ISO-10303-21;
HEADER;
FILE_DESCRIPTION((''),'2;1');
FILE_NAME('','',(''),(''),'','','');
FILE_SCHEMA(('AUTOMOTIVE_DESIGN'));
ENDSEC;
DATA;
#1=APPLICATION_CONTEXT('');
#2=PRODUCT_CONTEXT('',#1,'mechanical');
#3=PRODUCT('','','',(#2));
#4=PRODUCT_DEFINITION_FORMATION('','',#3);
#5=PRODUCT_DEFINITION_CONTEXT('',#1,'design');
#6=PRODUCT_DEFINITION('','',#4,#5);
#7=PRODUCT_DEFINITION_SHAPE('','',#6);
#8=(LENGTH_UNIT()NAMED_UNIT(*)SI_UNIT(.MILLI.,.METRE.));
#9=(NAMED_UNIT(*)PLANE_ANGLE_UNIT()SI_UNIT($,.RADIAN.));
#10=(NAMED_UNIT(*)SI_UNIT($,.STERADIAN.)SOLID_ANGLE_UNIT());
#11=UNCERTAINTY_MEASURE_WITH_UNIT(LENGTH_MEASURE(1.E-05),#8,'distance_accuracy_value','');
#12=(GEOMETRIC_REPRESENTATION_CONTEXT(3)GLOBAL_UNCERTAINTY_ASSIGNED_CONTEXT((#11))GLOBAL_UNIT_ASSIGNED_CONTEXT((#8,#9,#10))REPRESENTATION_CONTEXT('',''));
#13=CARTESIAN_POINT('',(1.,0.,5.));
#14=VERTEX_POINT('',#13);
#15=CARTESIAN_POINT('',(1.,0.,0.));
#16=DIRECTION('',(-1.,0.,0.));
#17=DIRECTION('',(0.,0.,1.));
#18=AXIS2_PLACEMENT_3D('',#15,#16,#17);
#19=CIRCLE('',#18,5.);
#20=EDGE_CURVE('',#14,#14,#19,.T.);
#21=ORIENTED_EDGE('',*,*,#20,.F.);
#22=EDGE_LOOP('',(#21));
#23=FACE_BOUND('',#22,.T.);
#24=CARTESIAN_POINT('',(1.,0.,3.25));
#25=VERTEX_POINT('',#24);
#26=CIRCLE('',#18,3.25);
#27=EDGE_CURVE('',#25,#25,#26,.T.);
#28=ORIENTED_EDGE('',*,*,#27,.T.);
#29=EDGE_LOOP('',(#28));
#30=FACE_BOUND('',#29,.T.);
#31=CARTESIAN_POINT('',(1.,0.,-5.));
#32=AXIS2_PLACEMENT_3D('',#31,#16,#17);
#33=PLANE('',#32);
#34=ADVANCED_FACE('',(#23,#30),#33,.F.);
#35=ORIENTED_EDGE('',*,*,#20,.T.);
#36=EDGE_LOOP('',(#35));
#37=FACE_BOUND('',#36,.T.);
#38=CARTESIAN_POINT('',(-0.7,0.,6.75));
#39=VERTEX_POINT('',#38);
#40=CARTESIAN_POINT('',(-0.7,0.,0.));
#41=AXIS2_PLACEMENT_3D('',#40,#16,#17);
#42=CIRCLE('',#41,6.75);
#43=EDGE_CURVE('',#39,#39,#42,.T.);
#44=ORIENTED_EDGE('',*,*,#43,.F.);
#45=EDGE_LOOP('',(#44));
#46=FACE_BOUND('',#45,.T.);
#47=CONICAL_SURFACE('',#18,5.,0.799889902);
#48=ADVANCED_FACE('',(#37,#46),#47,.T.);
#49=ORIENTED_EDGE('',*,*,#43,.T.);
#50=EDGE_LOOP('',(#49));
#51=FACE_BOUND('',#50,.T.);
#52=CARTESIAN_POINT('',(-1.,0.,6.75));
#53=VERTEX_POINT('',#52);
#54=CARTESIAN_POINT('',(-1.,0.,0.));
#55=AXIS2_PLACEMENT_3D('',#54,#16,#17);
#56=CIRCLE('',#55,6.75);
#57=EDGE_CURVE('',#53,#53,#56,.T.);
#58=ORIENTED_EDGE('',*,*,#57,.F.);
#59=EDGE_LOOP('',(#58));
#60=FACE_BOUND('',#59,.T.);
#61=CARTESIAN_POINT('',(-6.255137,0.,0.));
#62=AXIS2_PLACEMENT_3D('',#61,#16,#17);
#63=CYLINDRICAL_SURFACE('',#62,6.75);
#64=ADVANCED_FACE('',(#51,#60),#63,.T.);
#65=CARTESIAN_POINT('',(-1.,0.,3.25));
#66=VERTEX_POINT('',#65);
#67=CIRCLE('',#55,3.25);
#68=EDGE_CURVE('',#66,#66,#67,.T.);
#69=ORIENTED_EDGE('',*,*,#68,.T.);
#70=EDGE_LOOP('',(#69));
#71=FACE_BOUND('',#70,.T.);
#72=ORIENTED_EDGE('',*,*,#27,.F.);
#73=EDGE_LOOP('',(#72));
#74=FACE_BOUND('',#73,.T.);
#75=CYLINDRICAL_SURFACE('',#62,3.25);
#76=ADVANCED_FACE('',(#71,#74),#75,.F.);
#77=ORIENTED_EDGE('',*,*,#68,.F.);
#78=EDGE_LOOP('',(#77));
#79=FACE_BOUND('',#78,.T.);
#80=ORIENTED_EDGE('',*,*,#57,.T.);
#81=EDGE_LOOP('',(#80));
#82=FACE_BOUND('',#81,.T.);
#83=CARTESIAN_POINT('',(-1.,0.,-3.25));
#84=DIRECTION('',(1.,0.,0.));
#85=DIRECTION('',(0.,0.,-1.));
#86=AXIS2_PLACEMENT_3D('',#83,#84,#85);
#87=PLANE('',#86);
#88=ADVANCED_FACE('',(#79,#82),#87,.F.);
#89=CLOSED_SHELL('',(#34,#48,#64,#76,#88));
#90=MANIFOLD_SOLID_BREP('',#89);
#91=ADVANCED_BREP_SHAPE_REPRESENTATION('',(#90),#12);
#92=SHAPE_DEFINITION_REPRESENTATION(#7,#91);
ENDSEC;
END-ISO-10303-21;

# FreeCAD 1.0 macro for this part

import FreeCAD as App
import Part
import Sketcher

V = App.Vector

doc = App.newDocument("Part")
body = doc.addObject("PartDesign::Body", "Body")

sketch1 = body.newObject("Sketcher::SketchObject", "Sketch")
sketch1.AttachmentSupport = (doc.getObject("XZ_Plane"), [""])
sketch1.MapMode = "FlatFace"
sketch1.addGeometry([
    Part.LineSegment(V(-1, -3.25, 0), V(1, -3.25, 0)),
    Part.LineSegment(V(1, -3.25, 0), V(1, -5, 0)),
    Part.LineSegment(V(1, -5, 0), V(-0.7, -6.75, 0)),
    Part.LineSegment(V(-0.7, -6.75, 0), V(-1, -6.75, 0)),
    Part.LineSegment(V(-1, -6.75, 0), V(-1, -3.25, 0)),
], False)
sketch1.addConstraint([
    Sketcher.Constraint("Coincident", 0, 2, 1, 1),
    Sketcher.Constraint("Coincident", 1, 2, 2, 1),
    Sketcher.Constraint("Coincident", 2, 2, 3, 1),
    Sketcher.Constraint("Coincident", 3, 2, 4, 1),
    Sketcher.Constraint("Coincident", 4, 2, 0, 1),
    Sketcher.Constraint("Horizontal", 0),
    Sketcher.Constraint("Vertical", 1),
    Sketcher.Constraint("Horizontal", 3),
    Sketcher.Constraint("Vertical", 4),
    Sketcher.Constraint("DistanceX", 0, 1, 0, 2, 2.0),
    Sketcher.Constraint("DistanceX", 3, 2, 3, 1, 0.3),
    Sketcher.Constraint("DistanceY", 4, 1, 4, 2, 3.5),
    Sketcher.Constraint("DistanceX", -1, 1, 0, 2, 1.0),
    Sketcher.Constraint("DistanceY", 1, 2, -1, 1, 5.0),
    Sketcher.Constraint("DistanceY", 1, 2, 1, 1, 1.75),
])
revolution = body.newObject("PartDesign::Revolution", "Revolution")
revolution.Profile = sketch1
revolution.ReferenceAxis = (sketch1, ["H_Axis"])
revolution.Angle = 360

doc.recompute()
